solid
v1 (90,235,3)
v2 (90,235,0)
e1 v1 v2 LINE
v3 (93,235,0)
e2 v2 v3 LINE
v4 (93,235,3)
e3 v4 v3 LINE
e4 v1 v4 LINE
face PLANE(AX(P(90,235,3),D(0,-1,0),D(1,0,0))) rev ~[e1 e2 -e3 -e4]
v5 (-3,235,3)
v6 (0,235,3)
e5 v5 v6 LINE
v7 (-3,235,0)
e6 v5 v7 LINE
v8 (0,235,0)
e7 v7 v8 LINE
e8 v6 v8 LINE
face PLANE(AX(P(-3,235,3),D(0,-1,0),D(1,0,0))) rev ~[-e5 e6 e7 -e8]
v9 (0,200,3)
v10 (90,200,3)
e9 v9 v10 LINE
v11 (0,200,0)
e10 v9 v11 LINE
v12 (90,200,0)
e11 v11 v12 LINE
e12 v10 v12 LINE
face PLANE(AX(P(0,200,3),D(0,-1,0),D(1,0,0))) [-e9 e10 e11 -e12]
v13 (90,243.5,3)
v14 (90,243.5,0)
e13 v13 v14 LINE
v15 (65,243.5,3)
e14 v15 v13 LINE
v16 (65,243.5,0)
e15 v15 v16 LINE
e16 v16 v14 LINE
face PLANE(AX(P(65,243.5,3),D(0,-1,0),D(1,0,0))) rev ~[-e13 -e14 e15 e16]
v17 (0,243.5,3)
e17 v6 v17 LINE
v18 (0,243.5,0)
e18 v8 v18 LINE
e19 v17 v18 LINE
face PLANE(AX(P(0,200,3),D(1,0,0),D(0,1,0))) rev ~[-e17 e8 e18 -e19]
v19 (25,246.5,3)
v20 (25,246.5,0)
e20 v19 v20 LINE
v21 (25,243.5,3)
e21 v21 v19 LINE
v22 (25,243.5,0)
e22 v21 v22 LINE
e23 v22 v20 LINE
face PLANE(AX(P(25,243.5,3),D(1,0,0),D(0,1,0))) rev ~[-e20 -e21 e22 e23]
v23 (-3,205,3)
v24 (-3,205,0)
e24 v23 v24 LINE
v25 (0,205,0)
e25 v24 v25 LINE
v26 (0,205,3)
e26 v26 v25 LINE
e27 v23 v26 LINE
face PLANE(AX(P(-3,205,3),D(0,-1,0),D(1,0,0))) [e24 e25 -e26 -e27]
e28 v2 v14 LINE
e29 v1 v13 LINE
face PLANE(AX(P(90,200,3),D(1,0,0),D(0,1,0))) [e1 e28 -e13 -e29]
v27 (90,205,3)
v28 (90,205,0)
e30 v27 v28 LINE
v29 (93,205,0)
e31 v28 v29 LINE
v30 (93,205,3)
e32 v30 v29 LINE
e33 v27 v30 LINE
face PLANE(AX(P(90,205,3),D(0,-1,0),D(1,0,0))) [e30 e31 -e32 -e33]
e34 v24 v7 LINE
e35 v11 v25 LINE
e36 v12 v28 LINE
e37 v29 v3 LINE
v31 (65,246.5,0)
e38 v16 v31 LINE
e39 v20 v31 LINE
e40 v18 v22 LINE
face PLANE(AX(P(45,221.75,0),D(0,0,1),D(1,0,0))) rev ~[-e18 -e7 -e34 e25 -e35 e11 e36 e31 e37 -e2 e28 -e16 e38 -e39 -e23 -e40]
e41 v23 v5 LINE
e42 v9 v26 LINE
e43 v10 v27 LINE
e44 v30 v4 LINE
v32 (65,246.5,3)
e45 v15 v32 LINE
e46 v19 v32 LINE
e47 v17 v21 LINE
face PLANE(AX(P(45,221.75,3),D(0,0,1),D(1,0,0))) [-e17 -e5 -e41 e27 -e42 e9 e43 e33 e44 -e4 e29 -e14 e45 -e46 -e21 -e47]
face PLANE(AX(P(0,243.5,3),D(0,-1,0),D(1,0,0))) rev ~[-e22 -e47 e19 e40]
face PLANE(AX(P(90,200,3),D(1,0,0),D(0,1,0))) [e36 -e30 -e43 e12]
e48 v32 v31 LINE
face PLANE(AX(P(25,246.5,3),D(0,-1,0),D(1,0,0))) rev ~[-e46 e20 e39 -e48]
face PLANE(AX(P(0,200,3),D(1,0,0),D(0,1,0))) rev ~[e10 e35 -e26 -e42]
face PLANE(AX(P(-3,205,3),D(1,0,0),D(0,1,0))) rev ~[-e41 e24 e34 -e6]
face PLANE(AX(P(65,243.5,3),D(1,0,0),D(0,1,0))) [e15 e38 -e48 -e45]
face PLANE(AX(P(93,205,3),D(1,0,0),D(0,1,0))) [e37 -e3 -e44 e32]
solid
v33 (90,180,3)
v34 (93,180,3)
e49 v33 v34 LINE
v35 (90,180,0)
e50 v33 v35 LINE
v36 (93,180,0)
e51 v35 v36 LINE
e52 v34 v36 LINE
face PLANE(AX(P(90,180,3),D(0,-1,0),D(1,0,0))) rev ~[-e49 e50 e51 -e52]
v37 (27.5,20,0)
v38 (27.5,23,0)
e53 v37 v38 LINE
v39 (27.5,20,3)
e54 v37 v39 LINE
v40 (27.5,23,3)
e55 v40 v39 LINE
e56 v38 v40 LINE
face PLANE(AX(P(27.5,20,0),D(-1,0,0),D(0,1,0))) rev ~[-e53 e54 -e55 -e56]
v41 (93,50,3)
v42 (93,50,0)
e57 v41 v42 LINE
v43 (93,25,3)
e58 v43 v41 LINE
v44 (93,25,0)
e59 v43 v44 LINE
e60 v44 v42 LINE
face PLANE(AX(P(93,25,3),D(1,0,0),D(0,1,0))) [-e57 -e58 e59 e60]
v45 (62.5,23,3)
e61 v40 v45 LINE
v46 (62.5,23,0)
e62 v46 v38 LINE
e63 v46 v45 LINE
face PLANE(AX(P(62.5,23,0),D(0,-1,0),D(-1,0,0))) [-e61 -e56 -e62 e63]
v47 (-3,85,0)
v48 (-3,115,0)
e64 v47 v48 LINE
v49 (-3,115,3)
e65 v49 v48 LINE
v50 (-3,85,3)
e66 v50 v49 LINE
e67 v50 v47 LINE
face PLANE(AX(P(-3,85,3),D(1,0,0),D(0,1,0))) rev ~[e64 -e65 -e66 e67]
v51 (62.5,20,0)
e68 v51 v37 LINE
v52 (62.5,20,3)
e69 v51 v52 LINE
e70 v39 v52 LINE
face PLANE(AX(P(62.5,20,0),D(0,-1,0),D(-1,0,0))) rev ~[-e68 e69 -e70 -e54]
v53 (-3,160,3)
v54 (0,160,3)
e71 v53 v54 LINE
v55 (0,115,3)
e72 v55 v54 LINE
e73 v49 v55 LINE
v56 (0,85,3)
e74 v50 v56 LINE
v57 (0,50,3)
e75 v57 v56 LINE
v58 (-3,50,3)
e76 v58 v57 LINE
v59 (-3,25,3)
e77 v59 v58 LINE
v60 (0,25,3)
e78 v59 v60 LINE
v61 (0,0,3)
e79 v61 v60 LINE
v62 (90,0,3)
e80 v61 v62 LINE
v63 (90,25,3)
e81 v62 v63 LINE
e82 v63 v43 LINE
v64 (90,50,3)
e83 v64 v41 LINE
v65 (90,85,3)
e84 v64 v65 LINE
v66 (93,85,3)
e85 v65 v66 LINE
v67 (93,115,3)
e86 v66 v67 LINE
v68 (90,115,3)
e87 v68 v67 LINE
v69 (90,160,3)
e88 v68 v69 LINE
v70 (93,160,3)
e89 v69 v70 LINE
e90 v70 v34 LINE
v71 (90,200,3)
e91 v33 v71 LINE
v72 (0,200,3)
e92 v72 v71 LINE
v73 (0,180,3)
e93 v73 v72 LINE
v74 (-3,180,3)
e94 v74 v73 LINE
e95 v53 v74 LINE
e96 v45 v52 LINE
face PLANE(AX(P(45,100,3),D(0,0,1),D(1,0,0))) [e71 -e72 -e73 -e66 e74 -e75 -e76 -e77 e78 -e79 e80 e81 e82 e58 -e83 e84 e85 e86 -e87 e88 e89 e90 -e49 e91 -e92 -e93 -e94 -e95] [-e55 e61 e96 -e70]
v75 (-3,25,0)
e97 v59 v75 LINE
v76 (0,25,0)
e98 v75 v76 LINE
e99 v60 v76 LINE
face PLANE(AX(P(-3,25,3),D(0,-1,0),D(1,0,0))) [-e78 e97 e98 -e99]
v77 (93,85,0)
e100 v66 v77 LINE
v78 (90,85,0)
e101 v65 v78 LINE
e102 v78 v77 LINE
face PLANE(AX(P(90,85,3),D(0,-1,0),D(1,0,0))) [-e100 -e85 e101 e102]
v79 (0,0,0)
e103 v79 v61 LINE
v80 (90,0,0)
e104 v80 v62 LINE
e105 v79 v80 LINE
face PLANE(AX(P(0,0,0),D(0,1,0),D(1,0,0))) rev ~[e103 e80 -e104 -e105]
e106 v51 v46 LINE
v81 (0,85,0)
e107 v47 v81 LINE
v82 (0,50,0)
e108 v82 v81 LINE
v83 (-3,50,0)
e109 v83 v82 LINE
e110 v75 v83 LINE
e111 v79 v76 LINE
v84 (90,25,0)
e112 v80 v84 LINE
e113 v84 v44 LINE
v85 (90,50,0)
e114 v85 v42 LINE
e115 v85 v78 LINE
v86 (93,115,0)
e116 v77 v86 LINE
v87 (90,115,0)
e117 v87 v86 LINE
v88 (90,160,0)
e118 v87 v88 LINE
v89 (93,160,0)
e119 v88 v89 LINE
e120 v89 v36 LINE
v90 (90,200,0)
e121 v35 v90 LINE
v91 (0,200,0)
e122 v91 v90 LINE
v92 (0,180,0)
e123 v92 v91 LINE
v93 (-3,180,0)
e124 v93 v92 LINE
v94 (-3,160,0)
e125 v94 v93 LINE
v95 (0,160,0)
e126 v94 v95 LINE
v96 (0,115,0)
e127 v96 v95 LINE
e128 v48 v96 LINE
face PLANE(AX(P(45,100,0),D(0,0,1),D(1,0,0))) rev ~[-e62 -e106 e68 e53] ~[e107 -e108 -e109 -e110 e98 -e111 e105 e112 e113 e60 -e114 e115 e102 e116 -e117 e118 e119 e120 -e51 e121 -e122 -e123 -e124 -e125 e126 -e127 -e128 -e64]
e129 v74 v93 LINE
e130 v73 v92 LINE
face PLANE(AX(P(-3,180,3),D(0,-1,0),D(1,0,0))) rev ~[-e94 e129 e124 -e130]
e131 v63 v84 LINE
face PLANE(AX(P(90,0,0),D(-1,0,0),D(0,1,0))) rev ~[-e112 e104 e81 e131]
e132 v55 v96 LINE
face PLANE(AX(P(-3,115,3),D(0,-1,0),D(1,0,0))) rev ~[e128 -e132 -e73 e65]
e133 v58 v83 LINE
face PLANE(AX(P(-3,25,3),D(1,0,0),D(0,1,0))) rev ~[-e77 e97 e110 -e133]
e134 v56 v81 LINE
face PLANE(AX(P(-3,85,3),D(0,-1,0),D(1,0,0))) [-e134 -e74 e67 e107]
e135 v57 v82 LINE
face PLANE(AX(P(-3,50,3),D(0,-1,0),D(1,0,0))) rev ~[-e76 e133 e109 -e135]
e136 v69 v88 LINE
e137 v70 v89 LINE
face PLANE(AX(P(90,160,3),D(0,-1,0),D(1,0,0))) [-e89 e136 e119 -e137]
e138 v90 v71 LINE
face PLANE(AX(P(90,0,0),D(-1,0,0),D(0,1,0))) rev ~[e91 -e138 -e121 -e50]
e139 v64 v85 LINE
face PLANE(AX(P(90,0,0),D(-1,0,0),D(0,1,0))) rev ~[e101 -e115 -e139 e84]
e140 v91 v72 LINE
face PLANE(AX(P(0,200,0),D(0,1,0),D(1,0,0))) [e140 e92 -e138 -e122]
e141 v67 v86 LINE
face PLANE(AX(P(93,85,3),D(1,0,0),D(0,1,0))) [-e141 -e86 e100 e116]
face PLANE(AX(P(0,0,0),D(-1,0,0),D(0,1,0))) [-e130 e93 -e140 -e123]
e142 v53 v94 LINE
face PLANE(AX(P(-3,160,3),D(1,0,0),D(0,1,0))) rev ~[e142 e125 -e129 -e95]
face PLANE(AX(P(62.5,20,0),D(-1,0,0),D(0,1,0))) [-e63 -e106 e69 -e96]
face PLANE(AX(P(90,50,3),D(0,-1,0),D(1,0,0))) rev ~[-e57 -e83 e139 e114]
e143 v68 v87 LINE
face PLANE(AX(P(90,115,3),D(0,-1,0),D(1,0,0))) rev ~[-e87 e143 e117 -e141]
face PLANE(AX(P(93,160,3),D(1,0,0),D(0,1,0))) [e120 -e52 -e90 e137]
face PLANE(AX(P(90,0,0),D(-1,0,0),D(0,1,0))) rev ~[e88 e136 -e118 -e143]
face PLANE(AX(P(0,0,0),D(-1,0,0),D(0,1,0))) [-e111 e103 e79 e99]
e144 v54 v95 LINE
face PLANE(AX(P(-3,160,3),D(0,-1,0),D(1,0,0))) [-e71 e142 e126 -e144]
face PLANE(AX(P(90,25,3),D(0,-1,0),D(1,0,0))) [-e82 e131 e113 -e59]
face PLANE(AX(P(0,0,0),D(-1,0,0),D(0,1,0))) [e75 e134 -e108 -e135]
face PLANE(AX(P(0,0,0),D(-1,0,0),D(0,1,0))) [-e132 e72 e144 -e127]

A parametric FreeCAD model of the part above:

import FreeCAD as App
import Part
import Sketcher
from FreeCAD import Vector
Q = App.Units.Quantity


def add_polygon(sketch, points):
    """Adds a closed chain of lines whose ends are joined by coincident constraints."""
    first, n = sketch.GeometryCount, len(points)
    for a, b in zip(points, points[1:] + points[:1]):
        sketch.addGeometry(Part.LineSegment(App.Vector(*a, 0), App.Vector(*b, 0)), False)
    for i in range(n):
        sketch.addConstraint(Sketcher.Constraint("Coincident", first + i, 2, first + (i + 1) % n, 1))

doc = App.newDocument("Part")
body = doc.addObject("PartDesign::Body", "Body")

sketch1 = doc.addObject("Sketcher::SketchObject", "Sketch")
body.addObject(sketch1)
sketch1.AttachmentSupport = (doc.XY_Plane, [""])
sketch1.MapMode = "FlatFace"
add_polygon(sketch1, [(0, 200), (0, 0), (90, 0), (90, 200)])
sketch1.addConstraint(Sketcher.Constraint("Vertical", 0))
sketch1.addConstraint(Sketcher.Constraint("Horizontal", 1))
sketch1.addConstraint(Sketcher.Constraint("Vertical", 2))
sketch1.addConstraint(Sketcher.Constraint("Horizontal", 3))
sketch1.addConstraint(Sketcher.Constraint("Coincident", 0, 2, -1, 1))
sketch1.addConstraint(Sketcher.Constraint("DistanceX", 1, 1, 1, 2, Q("90 mm")))
sketch1.addConstraint(Sketcher.Constraint("DistanceY", 0, 2, 0, 1, Q("200 mm")))
pad1 = doc.addObject("PartDesign::Pad", "Pad")
body.addObject(pad1)
pad1.Profile = sketch1
pad1.Length = 3

sketch2 = doc.addObject("Sketcher::SketchObject", "Sketch001")
body.addObject(sketch2)
sketch2.AttachmentSupport = (doc.XY_Plane, [""])
sketch2.MapMode = "FlatFace"
sketch2.AttachmentOffset = App.Placement(Vector(0, 0, 3), App.Rotation())
add_polygon(sketch2, [(-3, 180), (-3, 160), (0, 160), (0, 180)])
add_polygon(sketch2, [(90, 180), (90, 160), (93, 160), (93, 180)])
add_polygon(sketch2, [(90, 115), (90, 85), (93, 85), (93, 115)])
add_polygon(sketch2, [(-3, 115), (-3, 85), (0, 85), (0, 115)])
add_polygon(sketch2, [(-3, 50), (-3, 25), (0, 25), (0, 50)])
add_polygon(sketch2, [(90, 50), (90, 25), (93, 25), (93, 50)])
sketch2.addConstraint(Sketcher.Constraint("Vertical", 0))
sketch2.addConstraint(Sketcher.Constraint("Horizontal", 1))
sketch2.addConstraint(Sketcher.Constraint("Vertical", 2))
sketch2.addConstraint(Sketcher.Constraint("Horizontal", 3))
sketch2.addConstraint(Sketcher.Constraint("Vertical", 4))
sketch2.addConstraint(Sketcher.Constraint("Horizontal", 5))
sketch2.addConstraint(Sketcher.Constraint("Vertical", 6))
sketch2.addConstraint(Sketcher.Constraint("Horizontal", 7))
sketch2.addConstraint(Sketcher.Constraint("Vertical", 8))
sketch2.addConstraint(Sketcher.Constraint("Horizontal", 9))
sketch2.addConstraint(Sketcher.Constraint("Vertical", 10))
sketch2.addConstraint(Sketcher.Constraint("Horizontal", 11))
sketch2.addConstraint(Sketcher.Constraint("Vertical", 12))
sketch2.addConstraint(Sketcher.Constraint("Horizontal", 13))
sketch2.addConstraint(Sketcher.Constraint("Vertical", 14))
sketch2.addConstraint(Sketcher.Constraint("Horizontal", 15))
sketch2.addConstraint(Sketcher.Constraint("Vertical", 16))
sketch2.addConstraint(Sketcher.Constraint("Horizontal", 17))
sketch2.addConstraint(Sketcher.Constraint("Vertical", 18))
sketch2.addConstraint(Sketcher.Constraint("Horizontal", 19))
sketch2.addConstraint(Sketcher.Constraint("Vertical", 20))
sketch2.addConstraint(Sketcher.Constraint("Horizontal", 21))
sketch2.addConstraint(Sketcher.Constraint("Vertical", 22))
sketch2.addConstraint(Sketcher.Constraint("Horizontal", 23))
sketch2.addConstraint(Sketcher.Constraint("PointOnObject", 1, 2, -2))
sketch2.addConstraint(Sketcher.Constraint("PointOnObject", 13, 2, -2))
sketch2.addConstraint(Sketcher.Constraint("PointOnObject", 17, 2, -2))
sketch2.addConstraint(Sketcher.Constraint("Horizontal", 1, 2, 4, 2))
sketch2.addConstraint(Sketcher.Constraint("Horizontal", 3, 2, 6, 2))
sketch2.addConstraint(Sketcher.Constraint("Horizontal", 9, 2, 12, 2))
sketch2.addConstraint(Sketcher.Constraint("Horizontal", 11, 2, 14, 2))
sketch2.addConstraint(Sketcher.Constraint("Horizontal", 17, 2, 20, 2))
sketch2.addConstraint(Sketcher.Constraint("Horizontal", 19, 2, 22, 2))
sketch2.addConstraint(Sketcher.Constraint("Vertical", 7, 2, 8, 2))
sketch2.addConstraint(Sketcher.Constraint("Vertical", 6, 2, 9, 2))
sketch2.addConstraint(Sketcher.Constraint("Vertical", 3, 2, 12, 2))
sketch2.addConstraint(Sketcher.Constraint("Vertical", 15, 2, 16, 2))
sketch2.addConstraint(Sketcher.Constraint("Vertical", 11, 2, 20, 2))
sketch2.addConstraint(Sketcher.Constraint("Vertical", 10, 2, 21, 2))
sketch2.addConstraint(Sketcher.Constraint("Equal", 3, 5))
sketch2.addConstraint(Sketcher.Constraint("DistanceX", 1, 1, 1, 2, Q("3 mm")))
sketch2.addConstraint(Sketcher.Constraint("DistanceY", 0, 2, 0, 1, Q("20 mm")))
sketch2.addConstraint(Sketcher.Constraint("DistanceY", 8, 2, 8, 1, Q("30 mm")))
sketch2.addConstraint(Sketcher.Constraint("DistanceY", 16, 2, 16, 1, Q("25 mm")))
sketch2.addConstraint(Sketcher.Constraint("DistanceY", -1, 1, 0, 2, Q("160 mm")))
sketch2.addConstraint(Sketcher.Constraint("DistanceX", -1, 1, 4, 2, Q("90 mm")))
sketch2.addConstraint(Sketcher.Constraint("DistanceY", -1, 1, 8, 2, Q("85 mm")))
sketch2.addConstraint(Sketcher.Constraint("DistanceY", -1, 1, 16, 2, Q("25 mm")))
pad2 = doc.addObject("PartDesign::Pad", "Pad001")
body.addObject(pad2)
pad2.Profile = sketch2
pad2.Length = 3
pad2.Reversed = True

sketch3 = doc.addObject("Sketcher::SketchObject", "Sketch002")
body.addObject(sketch3)
sketch3.AttachmentSupport = (doc.XY_Plane, [""])
sketch3.MapMode = "FlatFace"
add_polygon(sketch3, [(62.5, 23), (62.5, 20), (27.5, 20), (27.5, 23)])
sketch3.addConstraint(Sketcher.Constraint("Vertical", 0))
sketch3.addConstraint(Sketcher.Constraint("Horizontal", 1))
sketch3.addConstraint(Sketcher.Constraint("Vertical", 2))
sketch3.addConstraint(Sketcher.Constraint("Horizontal", 3))
sketch3.addConstraint(Sketcher.Constraint("DistanceX", 1, 2, 1, 1, Q("35 mm")))
sketch3.addConstraint(Sketcher.Constraint("DistanceY", 0, 2, 0, 1, Q("3 mm")))
sketch3.addConstraint(Sketcher.Constraint("DistanceY", -1, 1, 0, 2, Q("20 mm")))
sketch3.addConstraint(Sketcher.Constraint("DistanceX", -1, 1, 0, 2, Q("62.5 mm")))
pocket1 = doc.addObject("PartDesign::Pocket", "Pocket")
body.addObject(pocket1)
pocket1.Profile = sketch3
pocket1.Length = 4
pocket1.Reversed = True
body2 = doc.addObject("PartDesign::Body", "Body001")

sketch4 = doc.addObject("Sketcher::SketchObject", "Sketch003")
body2.addObject(sketch4)
sketch4.AttachmentSupport = (doc.getObject("XY_Plane001"), [""])
sketch4.MapMode = "FlatFace"
sketch4.AttachmentOffset = App.Placement(Vector(0, 0, 3), App.Rotation())
add_polygon(sketch4, [(0, 243.5), (0, 200), (90, 200), (90, 243.5), (65, 243.5), (65, 246.5), (25, 246.5), (25, 243.5)])
sketch4.addConstraint(Sketcher.Constraint("Vertical", 0))
sketch4.addConstraint(Sketcher.Constraint("Horizontal", 1))
sketch4.addConstraint(Sketcher.Constraint("Vertical", 2))
sketch4.addConstraint(Sketcher.Constraint("Horizontal", 3))
sketch4.addConstraint(Sketcher.Constraint("Vertical", 4))
sketch4.addConstraint(Sketcher.Constraint("Horizontal", 5))
sketch4.addConstraint(Sketcher.Constraint("Vertical", 6))
sketch4.addConstraint(Sketcher.Constraint("Horizontal", 7))
sketch4.addConstraint(Sketcher.Constraint("PointOnObject", 0, 2, -2))
sketch4.addConstraint(Sketcher.Constraint("Horizontal", 3, 2, 6, 2))
sketch4.addConstraint(Sketcher.Constraint("Equal", 3, 7))
sketch4.addConstraint(Sketcher.Constraint("DistanceX", 1, 1, 1, 2, Q("90 mm")))
sketch4.addConstraint(Sketcher.Constraint("DistanceX", 3, 2, 3, 1, Q("25 mm")))
sketch4.addConstraint(Sketcher.Constraint("DistanceY", 4, 1, 4, 2, Q("3 mm")))
sketch4.addConstraint(Sketcher.Constraint("DistanceY", 0, 2, 0, 1, Q("43.5 mm")))
sketch4.addConstraint(Sketcher.Constraint("DistanceY", -1, 1, 0, 2, Q("200 mm")))
pad3 = doc.addObject("PartDesign::Pad", "Pad002")
body2.addObject(pad3)
pad3.Profile = sketch4
pad3.Length = 3
pad3.Reversed = True

sketch5 = doc.addObject("Sketcher::SketchObject", "Sketch004")
body2.addObject(sketch5)
sketch5.AttachmentSupport = (doc.getObject("XY_Plane001"), [""])
sketch5.MapMode = "FlatFace"
sketch5.AttachmentOffset = App.Placement(Vector(0, 0, 3), App.Rotation())
add_polygon(sketch5, [(-3, 235), (-3, 205), (0, 205), (0, 235)])
add_polygon(sketch5, [(90, 235), (90, 205), (93, 205), (93, 235)])
sketch5.addConstraint(Sketcher.Constraint("Vertical", 0))
sketch5.addConstraint(Sketcher.Constraint("Horizontal", 1))
sketch5.addConstraint(Sketcher.Constraint("Vertical", 2))
sketch5.addConstraint(Sketcher.Constraint("Horizontal", 3))
sketch5.addConstraint(Sketcher.Constraint("Vertical", 4))
sketch5.addConstraint(Sketcher.Constraint("Horizontal", 5))
sketch5.addConstraint(Sketcher.Constraint("Vertical", 6))
sketch5.addConstraint(Sketcher.Constraint("Horizontal", 7))
sketch5.addConstraint(Sketcher.Constraint("PointOnObject", 1, 2, -2))
sketch5.addConstraint(Sketcher.Constraint("Horizontal", 1, 2, 4, 2))
sketch5.addConstraint(Sketcher.Constraint("Horizontal", 3, 2, 6, 2))
sketch5.addConstraint(Sketcher.Constraint("Equal", 3, 5))
sketch5.addConstraint(Sketcher.Constraint("DistanceX", 1, 1, 1, 2, Q("3 mm")))
sketch5.addConstraint(Sketcher.Constraint("DistanceY", 0, 2, 0, 1, Q("30 mm")))
sketch5.addConstraint(Sketcher.Constraint("DistanceY", -1, 1, 0, 2, Q("205 mm")))
sketch5.addConstraint(Sketcher.Constraint("DistanceX", -1, 1, 4, 2, Q("90 mm")))
pad4 = doc.addObject("PartDesign::Pad", "Pad003")
body2.addObject(pad4)
pad4.Profile = sketch5
pad4.Length = 3
pad4.Reversed = True

doc.recompute()
